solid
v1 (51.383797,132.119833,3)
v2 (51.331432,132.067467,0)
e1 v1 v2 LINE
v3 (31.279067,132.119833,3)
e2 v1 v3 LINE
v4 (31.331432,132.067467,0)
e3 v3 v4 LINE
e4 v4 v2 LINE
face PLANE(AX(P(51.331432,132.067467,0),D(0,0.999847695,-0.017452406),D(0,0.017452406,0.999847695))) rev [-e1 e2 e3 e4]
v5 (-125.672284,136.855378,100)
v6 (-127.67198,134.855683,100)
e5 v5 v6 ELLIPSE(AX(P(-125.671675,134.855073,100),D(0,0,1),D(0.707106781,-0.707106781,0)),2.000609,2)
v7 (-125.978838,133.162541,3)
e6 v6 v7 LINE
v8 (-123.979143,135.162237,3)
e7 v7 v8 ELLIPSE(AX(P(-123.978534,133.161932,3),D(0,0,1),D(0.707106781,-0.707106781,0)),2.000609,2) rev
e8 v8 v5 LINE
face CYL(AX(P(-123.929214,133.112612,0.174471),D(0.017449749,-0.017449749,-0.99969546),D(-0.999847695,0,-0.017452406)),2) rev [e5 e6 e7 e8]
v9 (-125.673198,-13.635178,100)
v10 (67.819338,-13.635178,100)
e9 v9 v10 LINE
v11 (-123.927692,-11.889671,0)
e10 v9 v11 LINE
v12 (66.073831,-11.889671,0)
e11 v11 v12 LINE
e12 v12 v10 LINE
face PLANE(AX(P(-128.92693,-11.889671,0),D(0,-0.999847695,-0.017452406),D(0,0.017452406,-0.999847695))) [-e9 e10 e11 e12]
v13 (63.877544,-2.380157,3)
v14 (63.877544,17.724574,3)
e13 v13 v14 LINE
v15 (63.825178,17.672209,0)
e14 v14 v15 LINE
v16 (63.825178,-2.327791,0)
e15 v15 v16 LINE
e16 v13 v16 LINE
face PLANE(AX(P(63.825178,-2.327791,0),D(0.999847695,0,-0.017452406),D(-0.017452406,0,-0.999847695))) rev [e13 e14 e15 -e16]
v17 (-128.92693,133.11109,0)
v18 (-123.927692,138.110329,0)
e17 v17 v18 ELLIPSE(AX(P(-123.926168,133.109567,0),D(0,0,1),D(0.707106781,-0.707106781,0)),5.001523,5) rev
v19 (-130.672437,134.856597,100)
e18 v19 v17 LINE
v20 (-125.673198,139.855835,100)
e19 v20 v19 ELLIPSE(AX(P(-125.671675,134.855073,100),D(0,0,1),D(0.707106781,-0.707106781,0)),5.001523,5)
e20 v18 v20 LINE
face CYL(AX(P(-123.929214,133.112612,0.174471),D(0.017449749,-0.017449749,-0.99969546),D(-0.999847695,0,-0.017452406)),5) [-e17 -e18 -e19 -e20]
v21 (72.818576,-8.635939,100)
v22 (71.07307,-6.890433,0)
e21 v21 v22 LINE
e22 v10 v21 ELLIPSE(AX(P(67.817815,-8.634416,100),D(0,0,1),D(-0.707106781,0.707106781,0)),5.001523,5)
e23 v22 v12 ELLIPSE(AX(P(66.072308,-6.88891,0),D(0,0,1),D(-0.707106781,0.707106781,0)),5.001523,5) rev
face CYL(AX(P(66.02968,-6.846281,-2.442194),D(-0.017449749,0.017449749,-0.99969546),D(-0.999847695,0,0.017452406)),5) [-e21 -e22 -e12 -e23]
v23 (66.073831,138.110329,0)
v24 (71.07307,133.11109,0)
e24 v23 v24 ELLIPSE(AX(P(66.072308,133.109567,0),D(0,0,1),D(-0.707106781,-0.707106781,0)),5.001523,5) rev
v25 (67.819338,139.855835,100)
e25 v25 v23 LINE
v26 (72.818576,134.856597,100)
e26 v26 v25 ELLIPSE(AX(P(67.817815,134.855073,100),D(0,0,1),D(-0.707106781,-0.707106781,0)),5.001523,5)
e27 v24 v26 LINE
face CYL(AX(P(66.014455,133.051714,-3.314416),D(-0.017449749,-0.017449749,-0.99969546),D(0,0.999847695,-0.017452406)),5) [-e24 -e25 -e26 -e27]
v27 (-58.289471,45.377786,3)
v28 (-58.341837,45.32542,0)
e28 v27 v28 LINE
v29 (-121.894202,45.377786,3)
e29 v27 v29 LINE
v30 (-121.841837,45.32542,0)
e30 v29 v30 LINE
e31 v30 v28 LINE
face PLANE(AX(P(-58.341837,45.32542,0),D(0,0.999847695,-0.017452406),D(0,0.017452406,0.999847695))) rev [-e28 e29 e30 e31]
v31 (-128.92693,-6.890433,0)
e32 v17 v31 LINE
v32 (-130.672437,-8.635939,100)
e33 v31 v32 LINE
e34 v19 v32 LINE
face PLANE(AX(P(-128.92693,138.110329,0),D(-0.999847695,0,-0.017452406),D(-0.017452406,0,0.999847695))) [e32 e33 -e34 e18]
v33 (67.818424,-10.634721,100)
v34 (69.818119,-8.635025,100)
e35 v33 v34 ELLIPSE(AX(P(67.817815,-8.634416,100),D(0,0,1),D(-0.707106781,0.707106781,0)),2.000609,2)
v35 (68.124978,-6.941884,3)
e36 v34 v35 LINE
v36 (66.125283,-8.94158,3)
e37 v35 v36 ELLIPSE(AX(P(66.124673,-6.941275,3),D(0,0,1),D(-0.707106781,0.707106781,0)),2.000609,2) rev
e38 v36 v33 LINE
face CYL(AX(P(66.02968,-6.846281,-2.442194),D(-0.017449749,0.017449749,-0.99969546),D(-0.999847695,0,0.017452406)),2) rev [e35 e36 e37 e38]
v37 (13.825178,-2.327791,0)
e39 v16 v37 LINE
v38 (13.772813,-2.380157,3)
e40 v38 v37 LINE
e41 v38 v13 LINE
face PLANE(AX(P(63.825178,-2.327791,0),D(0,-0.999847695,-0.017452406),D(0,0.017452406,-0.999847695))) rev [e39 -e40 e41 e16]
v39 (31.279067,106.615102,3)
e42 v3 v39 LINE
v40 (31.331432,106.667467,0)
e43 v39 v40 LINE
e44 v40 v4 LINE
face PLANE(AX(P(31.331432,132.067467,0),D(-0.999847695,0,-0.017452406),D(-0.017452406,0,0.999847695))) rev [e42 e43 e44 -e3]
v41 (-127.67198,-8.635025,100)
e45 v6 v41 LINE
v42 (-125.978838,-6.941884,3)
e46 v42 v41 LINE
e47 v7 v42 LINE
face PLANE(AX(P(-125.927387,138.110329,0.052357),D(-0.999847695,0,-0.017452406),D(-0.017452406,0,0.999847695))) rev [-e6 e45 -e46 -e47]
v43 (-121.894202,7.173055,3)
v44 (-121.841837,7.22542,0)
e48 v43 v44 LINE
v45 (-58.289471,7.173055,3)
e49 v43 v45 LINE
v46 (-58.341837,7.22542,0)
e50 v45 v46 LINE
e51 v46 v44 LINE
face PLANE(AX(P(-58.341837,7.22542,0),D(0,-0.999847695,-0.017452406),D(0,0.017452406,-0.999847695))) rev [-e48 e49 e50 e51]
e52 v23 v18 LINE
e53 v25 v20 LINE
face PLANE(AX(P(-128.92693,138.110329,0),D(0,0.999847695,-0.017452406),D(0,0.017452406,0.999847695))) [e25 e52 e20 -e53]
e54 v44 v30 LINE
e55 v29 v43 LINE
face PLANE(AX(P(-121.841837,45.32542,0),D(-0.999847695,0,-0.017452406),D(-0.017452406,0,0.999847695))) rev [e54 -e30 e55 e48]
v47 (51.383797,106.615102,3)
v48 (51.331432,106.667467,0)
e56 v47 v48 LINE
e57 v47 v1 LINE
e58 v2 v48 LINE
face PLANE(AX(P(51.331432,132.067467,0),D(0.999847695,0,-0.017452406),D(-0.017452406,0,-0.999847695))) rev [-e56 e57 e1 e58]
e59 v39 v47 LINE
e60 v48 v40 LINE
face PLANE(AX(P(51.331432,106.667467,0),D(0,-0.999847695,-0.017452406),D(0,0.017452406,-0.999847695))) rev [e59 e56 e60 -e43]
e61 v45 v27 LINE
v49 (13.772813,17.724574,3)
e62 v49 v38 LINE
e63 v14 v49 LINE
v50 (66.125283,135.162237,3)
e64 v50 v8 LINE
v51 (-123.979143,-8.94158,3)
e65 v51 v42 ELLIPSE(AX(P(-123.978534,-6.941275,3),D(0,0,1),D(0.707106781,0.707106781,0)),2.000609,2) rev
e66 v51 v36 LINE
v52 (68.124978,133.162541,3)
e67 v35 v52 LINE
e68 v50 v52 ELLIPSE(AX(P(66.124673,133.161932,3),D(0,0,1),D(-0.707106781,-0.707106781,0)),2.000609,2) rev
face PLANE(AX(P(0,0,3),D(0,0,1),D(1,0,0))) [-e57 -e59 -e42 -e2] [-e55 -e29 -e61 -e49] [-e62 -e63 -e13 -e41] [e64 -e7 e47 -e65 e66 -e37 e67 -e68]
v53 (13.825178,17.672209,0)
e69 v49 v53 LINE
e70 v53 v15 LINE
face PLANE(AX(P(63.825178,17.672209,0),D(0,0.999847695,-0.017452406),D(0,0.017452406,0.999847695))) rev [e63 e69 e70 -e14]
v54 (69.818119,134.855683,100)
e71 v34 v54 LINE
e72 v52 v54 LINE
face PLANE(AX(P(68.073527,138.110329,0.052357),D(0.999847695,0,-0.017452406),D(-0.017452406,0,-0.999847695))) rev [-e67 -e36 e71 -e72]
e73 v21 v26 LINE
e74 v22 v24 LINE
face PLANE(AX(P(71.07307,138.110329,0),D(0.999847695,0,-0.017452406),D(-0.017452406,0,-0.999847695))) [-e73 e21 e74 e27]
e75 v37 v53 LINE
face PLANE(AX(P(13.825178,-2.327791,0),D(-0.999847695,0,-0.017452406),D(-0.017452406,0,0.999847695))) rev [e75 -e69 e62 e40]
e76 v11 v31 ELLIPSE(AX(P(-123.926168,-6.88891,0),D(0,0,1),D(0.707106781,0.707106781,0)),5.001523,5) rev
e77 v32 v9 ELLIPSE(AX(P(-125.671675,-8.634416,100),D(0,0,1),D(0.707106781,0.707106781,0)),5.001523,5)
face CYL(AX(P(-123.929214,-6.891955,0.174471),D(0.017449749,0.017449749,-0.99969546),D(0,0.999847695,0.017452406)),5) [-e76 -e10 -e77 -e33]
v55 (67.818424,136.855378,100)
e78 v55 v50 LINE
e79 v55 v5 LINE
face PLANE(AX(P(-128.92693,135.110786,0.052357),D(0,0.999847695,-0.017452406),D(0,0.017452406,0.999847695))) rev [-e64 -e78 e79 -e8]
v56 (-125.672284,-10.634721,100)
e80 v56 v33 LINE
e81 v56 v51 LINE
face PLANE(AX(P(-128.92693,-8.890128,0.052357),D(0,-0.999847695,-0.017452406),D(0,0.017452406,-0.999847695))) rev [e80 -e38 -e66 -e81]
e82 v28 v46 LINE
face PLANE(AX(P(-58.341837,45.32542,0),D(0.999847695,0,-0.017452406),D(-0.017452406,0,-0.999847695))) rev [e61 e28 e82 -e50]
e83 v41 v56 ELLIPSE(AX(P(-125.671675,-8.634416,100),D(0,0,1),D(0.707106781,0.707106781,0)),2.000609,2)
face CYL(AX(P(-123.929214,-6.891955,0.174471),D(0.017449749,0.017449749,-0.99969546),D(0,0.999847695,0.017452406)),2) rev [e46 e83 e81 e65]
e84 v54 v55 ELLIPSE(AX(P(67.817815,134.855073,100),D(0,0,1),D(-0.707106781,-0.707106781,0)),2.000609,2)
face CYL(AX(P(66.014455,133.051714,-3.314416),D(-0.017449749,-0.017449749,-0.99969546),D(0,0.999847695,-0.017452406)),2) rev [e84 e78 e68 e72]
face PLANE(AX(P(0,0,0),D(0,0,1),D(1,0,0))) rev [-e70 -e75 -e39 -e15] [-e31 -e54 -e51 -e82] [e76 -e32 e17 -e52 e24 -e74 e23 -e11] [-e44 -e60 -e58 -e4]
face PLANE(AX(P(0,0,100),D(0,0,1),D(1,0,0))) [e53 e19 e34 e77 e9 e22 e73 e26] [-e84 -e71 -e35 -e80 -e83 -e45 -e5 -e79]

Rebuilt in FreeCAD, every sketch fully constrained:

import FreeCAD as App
import Part
import Sketcher
Q = App.Units.Quantity


def edges_at(feature, points):
    """Names of the edges that pass closest to the given points."""
    edges = feature.Shape.Edges
    near = lambda p: min(range(len(edges)), key=lambda i: edges[i].distToShape(Part.Vertex(*p))[0])
    return sorted({f"Edge{near(p) + 1}" for p in points})


def faces_at(feature, points):
    """Names of the faces that lie closest to the given points."""
    faces = feature.Shape.Faces
    near = lambda p: min(range(len(faces)), key=lambda i: faces[i].distToShape(Part.Vertex(*p))[0])
    return sorted({f"Face{near(p) + 1}" for p in points})

doc = App.newDocument("Part")
body = doc.addObject("PartDesign::Body", "Body")

sketch1 = body.newObject("Sketcher::SketchObject", "Sketch")
sketch1.AttachmentSupport = (doc.getObject("XY_Plane"), [""])
sketch1.MapMode = "FlatFace"
sketch1.addGeometry([
    Part.LineSegment(App.Vector(-129, 138, 0), App.Vector(-129, -12, 0)),
    Part.LineSegment(App.Vector(-129, -12, 0), App.Vector(71, -12, 0)),
    Part.LineSegment(App.Vector(71, -12, 0), App.Vector(71, 138, 0)),
    Part.LineSegment(App.Vector(71, 138, 0), App.Vector(-129, 138, 0)),
], False)
sketch1.addConstraint([
    Sketcher.Constraint("Coincident", 0, 2, 1, 1),
    Sketcher.Constraint("Coincident", 1, 2, 2, 1),
    Sketcher.Constraint("Coincident", 2, 2, 3, 1),
    Sketcher.Constraint("Coincident", 3, 2, 0, 1),
    Sketcher.Constraint("Vertical", 0),
    Sketcher.Constraint("Horizontal", 1),
    Sketcher.Constraint("Vertical", 2),
    Sketcher.Constraint("Horizontal", 3),
    Sketcher.Constraint("DistanceX", 1, 1, 1, 2, Q("200 mm")),
    Sketcher.Constraint("DistanceY", 0, 2, 0, 1, Q("150 mm")),
    Sketcher.Constraint("DistanceX", 0, 2, -1, 1, Q("128.92693 mm")),
    Sketcher.Constraint("DistanceY", 0, 2, -1, 1, Q("11.889671 mm")),
])
pad1 = body.newObject("PartDesign::Pad", "Pad")
pad1.Profile = sketch1
pad1.Length = 100
pad1.TaperAngle = 1
doc.recompute()

fillet = body.newObject("PartDesign::Fillet", "Fillet")
fillet.Base = (pad1, edges_at(pad1, [
    (71.946, -12.762, 50),
    (-129.8, -12.762, 50),
    (-129.8, 138.983, 50),
    (71.946, 138.983, 50),
]))
fillet.Radius = 5
doc.recompute()

thickness = body.newObject("PartDesign::Thickness", "Thickness")
thickness.Base = (fillet, faces_at(fillet, [(-28.927, 63.11, 100)]))
thickness.Value = 3
thickness.Reversed = True
thickness.Join = "Intersection"

sketch2 = body.newObject("Sketcher::SketchObject", "Sketch001")
sketch2.AttachmentSupport = (doc.getObject("XY_Plane"), [""])
sketch2.MapMode = "FlatFace"
sketch2.addGeometry([
    Part.LineSegment(App.Vector(51, 132, 0), App.Vector(51, 107, 0)),
    Part.LineSegment(App.Vector(51, 107, 0), App.Vector(31, 107, 0)),
    Part.LineSegment(App.Vector(31, 107, 0), App.Vector(31, 132, 0)),
    Part.LineSegment(App.Vector(31, 132, 0), App.Vector(51, 132, 0)),
    Part.LineSegment(App.Vector(64, 18, 0), App.Vector(64, -2, 0)),
    Part.LineSegment(App.Vector(64, -2, 0), App.Vector(14, -2, 0)),
    Part.LineSegment(App.Vector(14, -2, 0), App.Vector(14, 18, 0)),
    Part.LineSegment(App.Vector(14, 18, 0), App.Vector(64, 18, 0)),
], False)
sketch2.addConstraint([
    Sketcher.Constraint("Coincident", 0, 2, 1, 1),
    Sketcher.Constraint("Coincident", 1, 2, 2, 1),
    Sketcher.Constraint("Coincident", 2, 2, 3, 1),
    Sketcher.Constraint("Coincident", 3, 2, 0, 1),
    Sketcher.Constraint("Coincident", 4, 2, 5, 1),
    Sketcher.Constraint("Coincident", 5, 2, 6, 1),
    Sketcher.Constraint("Coincident", 6, 2, 7, 1),
    Sketcher.Constraint("Coincident", 7, 2, 4, 1),
    Sketcher.Constraint("Vertical", 0),
    Sketcher.Constraint("Horizontal", 1),
    Sketcher.Constraint("Vertical", 2),
    Sketcher.Constraint("Horizontal", 3),
    Sketcher.Constraint("Vertical", 4),
    Sketcher.Constraint("Horizontal", 5),
    Sketcher.Constraint("Vertical", 6),
    Sketcher.Constraint("Horizontal", 7),
    Sketcher.Constraint("Equal", 3, 4),
    Sketcher.Constraint("DistanceX", 1, 2, 1, 1, Q("20 mm")),
    Sketcher.Constraint("DistanceX", 5, 2, 5, 1, Q("50 mm")),
    Sketcher.Constraint("DistanceY", 0, 2, 0, 1, Q("25.4 mm")),
    Sketcher.Constraint("DistanceX", -1, 1, 4, 2, Q("63.825178 mm")),
    Sketcher.Constraint("DistanceY", 4, 2, -1, 1, Q("2.327791 mm")),
    Sketcher.Constraint("DistanceY", 4, 2, 0, 2, Q("108.995259 mm")),
    Sketcher.Constraint("DistanceX", -1, 1, 0, 2, Q("51.331432 mm")),
])
pocket1 = body.newObject("PartDesign::Pocket", "Pocket")
pocket1.Profile = sketch2
pocket1.Length = 59.614
pocket1.Reversed = True
pocket1.TaperAngle = 1

sketch3 = body.newObject("Sketcher::SketchObject", "Sketch002")
sketch3.AttachmentSupport = (doc.getObject("XY_Plane"), [""])
sketch3.MapMode = "FlatFace"
sketch3.addGeometry([
    Part.LineSegment(App.Vector(-58, 45, 0), App.Vector(-58, 7, 0)),
    Part.LineSegment(App.Vector(-58, 7, 0), App.Vector(-122, 7, 0)),
    Part.LineSegment(App.Vector(-122, 7, 0), App.Vector(-122, 45, 0)),
    Part.LineSegment(App.Vector(-122, 45, 0), App.Vector(-58, 45, 0)),
], False)
sketch3.addConstraint([
    Sketcher.Constraint("Coincident", 0, 2, 1, 1),
    Sketcher.Constraint("Coincident", 1, 2, 2, 1),
    Sketcher.Constraint("Coincident", 2, 2, 3, 1),
    Sketcher.Constraint("Coincident", 3, 2, 0, 1),
    Sketcher.Constraint("Vertical", 0),
    Sketcher.Constraint("Horizontal", 1),
    Sketcher.Constraint("Vertical", 2),
    Sketcher.Constraint("Horizontal", 3),
    Sketcher.Constraint("DistanceX", 1, 2, 1, 1, Q("63.5 mm")),
    Sketcher.Constraint("DistanceY", 0, 2, 0, 1, Q("38.1 mm")),
    Sketcher.Constraint("DistanceY", -1, 1, 0, 2, Q("7.22542 mm")),
    Sketcher.Constraint("DistanceX", 0, 2, -1, 1, Q("58.341837 mm")),
])
pocket2 = body.newObject("PartDesign::Pocket", "Pocket001")
pocket2.Profile = sketch3
pocket2.Length = 100
pocket2.Reversed = True
pocket2.TaperAngle = 1

doc.recompute()
